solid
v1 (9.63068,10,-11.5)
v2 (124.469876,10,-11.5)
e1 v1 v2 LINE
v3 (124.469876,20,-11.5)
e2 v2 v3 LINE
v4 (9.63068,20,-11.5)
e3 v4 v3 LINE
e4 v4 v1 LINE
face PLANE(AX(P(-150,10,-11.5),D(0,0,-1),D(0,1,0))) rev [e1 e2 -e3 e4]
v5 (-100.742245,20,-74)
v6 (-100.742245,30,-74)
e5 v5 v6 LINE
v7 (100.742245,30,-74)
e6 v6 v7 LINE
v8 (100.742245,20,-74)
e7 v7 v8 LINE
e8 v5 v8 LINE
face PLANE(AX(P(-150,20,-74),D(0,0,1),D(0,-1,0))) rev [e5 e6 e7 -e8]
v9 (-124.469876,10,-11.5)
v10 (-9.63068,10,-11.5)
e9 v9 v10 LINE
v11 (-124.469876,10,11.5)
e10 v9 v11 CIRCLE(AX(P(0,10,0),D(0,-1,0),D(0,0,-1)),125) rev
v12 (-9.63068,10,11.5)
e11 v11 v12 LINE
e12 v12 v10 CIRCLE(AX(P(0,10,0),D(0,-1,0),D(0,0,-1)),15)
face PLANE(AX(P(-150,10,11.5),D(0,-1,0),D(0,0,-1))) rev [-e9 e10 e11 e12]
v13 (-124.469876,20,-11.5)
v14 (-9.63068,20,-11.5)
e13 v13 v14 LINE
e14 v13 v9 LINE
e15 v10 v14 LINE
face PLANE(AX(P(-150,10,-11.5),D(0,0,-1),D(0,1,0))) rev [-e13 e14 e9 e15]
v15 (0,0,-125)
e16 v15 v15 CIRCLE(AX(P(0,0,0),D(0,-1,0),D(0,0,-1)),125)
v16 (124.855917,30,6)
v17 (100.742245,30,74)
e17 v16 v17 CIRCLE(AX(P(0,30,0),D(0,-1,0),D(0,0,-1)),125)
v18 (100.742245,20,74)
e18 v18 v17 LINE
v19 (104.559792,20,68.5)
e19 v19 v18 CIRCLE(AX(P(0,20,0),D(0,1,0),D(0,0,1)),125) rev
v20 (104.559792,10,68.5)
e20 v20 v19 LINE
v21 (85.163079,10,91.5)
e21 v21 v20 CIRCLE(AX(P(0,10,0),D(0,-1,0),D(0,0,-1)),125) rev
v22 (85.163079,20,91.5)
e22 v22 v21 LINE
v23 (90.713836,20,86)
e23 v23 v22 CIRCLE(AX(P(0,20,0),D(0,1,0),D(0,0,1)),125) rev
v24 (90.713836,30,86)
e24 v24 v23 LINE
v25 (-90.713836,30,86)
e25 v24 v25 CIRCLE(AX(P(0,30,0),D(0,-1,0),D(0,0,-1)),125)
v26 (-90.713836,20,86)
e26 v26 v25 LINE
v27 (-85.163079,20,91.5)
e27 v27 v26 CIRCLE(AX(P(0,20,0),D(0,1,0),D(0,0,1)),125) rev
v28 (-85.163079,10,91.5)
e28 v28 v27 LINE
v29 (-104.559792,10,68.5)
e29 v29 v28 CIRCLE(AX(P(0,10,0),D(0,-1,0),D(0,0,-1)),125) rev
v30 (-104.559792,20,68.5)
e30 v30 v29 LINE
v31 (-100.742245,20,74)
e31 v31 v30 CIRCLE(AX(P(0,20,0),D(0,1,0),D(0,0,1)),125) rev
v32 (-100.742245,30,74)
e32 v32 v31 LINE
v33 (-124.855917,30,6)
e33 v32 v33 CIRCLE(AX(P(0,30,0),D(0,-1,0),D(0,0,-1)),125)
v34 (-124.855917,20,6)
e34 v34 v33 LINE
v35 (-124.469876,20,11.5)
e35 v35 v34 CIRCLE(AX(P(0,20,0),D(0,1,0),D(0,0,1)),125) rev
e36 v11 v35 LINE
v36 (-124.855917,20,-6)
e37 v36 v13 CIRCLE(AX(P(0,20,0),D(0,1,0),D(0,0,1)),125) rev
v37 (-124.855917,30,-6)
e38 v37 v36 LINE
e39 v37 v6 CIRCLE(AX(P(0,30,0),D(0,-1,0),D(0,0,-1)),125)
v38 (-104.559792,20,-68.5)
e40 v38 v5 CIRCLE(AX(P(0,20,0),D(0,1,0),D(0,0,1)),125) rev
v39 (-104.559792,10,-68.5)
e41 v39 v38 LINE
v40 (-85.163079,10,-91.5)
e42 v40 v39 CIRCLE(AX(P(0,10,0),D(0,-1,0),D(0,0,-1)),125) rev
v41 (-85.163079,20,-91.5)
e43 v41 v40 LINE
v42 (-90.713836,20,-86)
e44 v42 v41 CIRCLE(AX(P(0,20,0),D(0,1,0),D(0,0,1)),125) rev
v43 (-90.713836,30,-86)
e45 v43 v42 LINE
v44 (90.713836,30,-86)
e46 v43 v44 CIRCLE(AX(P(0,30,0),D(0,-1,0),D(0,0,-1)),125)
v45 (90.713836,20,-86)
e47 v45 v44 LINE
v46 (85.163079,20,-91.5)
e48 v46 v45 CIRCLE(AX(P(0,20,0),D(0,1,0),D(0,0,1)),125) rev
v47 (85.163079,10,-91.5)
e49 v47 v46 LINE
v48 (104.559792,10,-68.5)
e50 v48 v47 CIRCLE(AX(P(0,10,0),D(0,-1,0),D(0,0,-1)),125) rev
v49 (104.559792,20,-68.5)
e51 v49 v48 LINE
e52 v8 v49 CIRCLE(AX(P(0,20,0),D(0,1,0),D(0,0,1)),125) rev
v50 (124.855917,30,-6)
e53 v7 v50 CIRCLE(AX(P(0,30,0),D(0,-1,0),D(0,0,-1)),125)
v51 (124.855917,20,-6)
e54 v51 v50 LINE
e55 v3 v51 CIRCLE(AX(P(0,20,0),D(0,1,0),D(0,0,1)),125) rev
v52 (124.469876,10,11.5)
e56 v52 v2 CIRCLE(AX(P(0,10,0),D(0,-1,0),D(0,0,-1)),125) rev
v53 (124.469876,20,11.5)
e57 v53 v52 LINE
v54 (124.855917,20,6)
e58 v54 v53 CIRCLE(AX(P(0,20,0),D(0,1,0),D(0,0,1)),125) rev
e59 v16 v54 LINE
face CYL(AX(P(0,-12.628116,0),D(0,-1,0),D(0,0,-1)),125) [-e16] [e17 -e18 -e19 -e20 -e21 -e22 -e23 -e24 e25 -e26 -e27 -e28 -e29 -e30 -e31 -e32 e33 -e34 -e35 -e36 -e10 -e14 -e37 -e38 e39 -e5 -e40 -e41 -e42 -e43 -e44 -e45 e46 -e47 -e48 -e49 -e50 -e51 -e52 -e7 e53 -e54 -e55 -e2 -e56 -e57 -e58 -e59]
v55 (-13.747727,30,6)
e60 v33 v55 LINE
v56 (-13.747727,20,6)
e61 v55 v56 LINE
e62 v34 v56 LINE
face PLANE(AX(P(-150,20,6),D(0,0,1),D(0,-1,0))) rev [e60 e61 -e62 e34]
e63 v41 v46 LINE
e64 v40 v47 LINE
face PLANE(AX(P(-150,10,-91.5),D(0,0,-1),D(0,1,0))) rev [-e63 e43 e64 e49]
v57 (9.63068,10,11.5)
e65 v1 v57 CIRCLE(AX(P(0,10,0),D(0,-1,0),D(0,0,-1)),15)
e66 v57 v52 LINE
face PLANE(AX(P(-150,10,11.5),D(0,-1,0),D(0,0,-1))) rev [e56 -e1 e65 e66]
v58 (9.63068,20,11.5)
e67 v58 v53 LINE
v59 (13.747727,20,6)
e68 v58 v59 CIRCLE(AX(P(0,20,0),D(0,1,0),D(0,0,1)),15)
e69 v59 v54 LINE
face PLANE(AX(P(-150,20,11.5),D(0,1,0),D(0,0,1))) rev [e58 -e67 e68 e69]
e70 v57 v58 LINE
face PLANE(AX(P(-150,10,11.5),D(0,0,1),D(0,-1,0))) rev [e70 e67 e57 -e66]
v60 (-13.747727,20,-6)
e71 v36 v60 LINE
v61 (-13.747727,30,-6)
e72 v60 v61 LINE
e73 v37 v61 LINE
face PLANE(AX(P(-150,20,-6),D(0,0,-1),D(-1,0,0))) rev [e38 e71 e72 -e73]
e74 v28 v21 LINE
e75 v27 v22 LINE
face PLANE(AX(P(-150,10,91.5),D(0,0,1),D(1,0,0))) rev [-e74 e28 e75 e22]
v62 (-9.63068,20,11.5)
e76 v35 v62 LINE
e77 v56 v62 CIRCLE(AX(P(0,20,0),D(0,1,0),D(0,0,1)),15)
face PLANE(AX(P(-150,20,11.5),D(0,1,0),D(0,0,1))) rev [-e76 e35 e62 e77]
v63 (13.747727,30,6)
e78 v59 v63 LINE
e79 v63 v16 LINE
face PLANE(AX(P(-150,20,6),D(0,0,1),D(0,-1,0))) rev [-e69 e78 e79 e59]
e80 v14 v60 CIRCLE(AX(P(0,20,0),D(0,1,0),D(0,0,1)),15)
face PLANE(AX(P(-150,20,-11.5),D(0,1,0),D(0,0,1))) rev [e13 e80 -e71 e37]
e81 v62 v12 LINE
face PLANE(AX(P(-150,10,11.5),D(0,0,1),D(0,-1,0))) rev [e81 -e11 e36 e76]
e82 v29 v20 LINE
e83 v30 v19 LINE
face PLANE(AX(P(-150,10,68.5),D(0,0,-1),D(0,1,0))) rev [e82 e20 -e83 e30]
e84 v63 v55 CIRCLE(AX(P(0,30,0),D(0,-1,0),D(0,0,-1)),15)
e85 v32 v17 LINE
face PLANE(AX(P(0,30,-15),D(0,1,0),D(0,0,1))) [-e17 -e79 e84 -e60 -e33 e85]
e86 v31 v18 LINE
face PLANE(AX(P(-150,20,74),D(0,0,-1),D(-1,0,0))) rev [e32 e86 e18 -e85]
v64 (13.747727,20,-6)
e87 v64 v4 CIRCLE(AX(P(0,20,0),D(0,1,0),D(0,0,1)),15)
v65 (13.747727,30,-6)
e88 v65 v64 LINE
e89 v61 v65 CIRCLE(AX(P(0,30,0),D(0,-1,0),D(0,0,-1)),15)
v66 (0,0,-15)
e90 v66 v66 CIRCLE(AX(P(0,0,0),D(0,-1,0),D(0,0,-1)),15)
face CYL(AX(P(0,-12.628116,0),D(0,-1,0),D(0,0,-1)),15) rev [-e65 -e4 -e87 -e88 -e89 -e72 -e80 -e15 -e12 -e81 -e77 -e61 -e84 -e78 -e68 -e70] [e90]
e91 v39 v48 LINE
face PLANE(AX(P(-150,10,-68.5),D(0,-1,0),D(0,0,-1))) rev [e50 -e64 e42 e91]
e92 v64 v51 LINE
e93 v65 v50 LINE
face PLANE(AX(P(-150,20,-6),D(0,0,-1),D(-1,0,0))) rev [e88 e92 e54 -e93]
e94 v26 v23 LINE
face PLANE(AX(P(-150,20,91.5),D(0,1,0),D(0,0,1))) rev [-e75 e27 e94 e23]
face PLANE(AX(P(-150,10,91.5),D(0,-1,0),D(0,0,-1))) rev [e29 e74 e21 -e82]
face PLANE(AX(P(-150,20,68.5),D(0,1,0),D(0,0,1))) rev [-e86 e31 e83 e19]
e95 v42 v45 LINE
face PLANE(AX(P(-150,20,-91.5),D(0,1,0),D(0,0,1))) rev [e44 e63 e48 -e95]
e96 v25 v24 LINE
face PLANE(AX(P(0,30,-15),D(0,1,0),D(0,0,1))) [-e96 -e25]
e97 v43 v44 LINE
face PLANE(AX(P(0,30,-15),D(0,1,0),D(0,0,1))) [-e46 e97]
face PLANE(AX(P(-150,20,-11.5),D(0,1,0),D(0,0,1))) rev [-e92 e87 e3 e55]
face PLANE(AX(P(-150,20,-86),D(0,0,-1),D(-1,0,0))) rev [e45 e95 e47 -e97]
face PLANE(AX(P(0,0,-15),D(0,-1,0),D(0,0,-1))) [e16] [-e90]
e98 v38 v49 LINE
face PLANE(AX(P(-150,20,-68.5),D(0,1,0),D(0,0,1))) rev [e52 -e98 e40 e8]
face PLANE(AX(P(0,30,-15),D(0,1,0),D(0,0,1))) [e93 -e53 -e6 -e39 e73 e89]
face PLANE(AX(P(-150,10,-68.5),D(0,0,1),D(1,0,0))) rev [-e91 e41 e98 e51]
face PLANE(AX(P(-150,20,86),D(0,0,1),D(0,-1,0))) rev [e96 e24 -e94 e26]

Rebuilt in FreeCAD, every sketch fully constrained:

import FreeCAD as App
import Part
import Sketcher

V = App.Vector
Q = App.Units.Quantity

doc = App.newDocument("Part")
body = doc.addObject("PartDesign::Body", "Body")

# Sketch on YZ plane
sketch1 = body.newObject("Sketcher::SketchObject", "Sketch")
sketch1.AttachmentSupport = (doc.getObject("YZ_Plane"), [""])
sketch1.MapMode = "FlatFace"
sketch1.addGeometry([
    Part.LineSegment(V(30, -15, 0), V(0, -15, 0)),
    Part.LineSegment(V(0, -15, 0), V(0, -125, 0)),
    Part.LineSegment(V(0, -125, 0), V(30, -125, 0)),
    Part.LineSegment(V(30, -125, 0), V(30, -15, 0)),
], False)
sketch1.addConstraint([
    Sketcher.Constraint("Coincident", 0, 2, 1, 1),
    Sketcher.Constraint("Coincident", 1, 2, 2, 1),
    Sketcher.Constraint("Coincident", 2, 2, 3, 1),
    Sketcher.Constraint("Coincident", 3, 2, 0, 1),
    Sketcher.Constraint("Horizontal", 0),
    Sketcher.Constraint("Vertical", 1),
    Sketcher.Constraint("Horizontal", 2),
    Sketcher.Constraint("Vertical", 3),
    Sketcher.Constraint("PointOnObject", 0, 2, -2),
    Sketcher.Constraint("DistanceX", 0, 2, 0, 1, Q("30 mm")),
    Sketcher.Constraint("DistanceY", 1, 2, 1, 1, Q("110 mm")),
    Sketcher.Constraint("DistanceY", 0, 2, -1, 1, Q("15 mm")),
])
revolution = body.newObject("PartDesign::Revolution", "Revolution")
revolution.Profile = sketch1
revolution.ReferenceAxis = (sketch1, ["H_Axis"])
revolution.Angle = 360

# Sketch on YZ plane
sketch2 = body.newObject("Sketcher::SketchObject", "Sketch001")
sketch2.AttachmentSupport = (doc.getObject("YZ_Plane"), [""])
sketch2.MapMode = "FlatFace"
sketch2.addGeometry([
    Part.LineSegment(V(10, -12, 0), V(20, -12, 0)),  # 0
    Part.LineSegment(V(20, -12, 0), V(20, -6, 0)),  # 1
    Part.LineSegment(V(20, -6, 0), V(30, -6, 0)),  # 2
    Part.LineSegment(V(30, -6, 0), V(30, 6, 0)),  # 3
    Part.LineSegment(V(30, 6, 0), V(20, 6, 0)),  # 4
    Part.LineSegment(V(20, 6, 0), V(20, 12, 0)),  # 5
    Part.LineSegment(V(20, 12, 0), V(10, 12, 0)),  # 6
    Part.LineSegment(V(10, 12, 0), V(10, -12, 0)),  # 7
    Part.LineSegment(V(10, -68, 0), V(10, -92, 0)),  # 8
    Part.LineSegment(V(10, -92, 0), V(20, -92, 0)),  # 9
    Part.LineSegment(V(20, -92, 0), V(20, -86, 0)),  # 10
    Part.LineSegment(V(20, -86, 0), V(30, -86, 0)),  # 11
    Part.LineSegment(V(30, -86, 0), V(30, -74, 0)),  # 12
    Part.LineSegment(V(30, -74, 0), V(20, -74, 0)),  # 13
    Part.LineSegment(V(20, -74, 0), V(20, -68, 0)),  # 14
    Part.LineSegment(V(20, -68, 0), V(10, -68, 0)),  # 15
    Part.LineSegment(V(10, 92, 0), V(10, 68, 0)),  # 16
    Part.LineSegment(V(10, 68, 0), V(20, 68, 0)),  # 17
    Part.LineSegment(V(20, 68, 0), V(20, 74, 0)),  # 18
    Part.LineSegment(V(20, 74, 0), V(30, 74, 0)),  # 19
    Part.LineSegment(V(30, 74, 0), V(30, 86, 0)),  # 20
    Part.LineSegment(V(30, 86, 0), V(20, 86, 0)),  # 21
    Part.LineSegment(V(20, 86, 0), V(20, 92, 0)),  # 22
    Part.LineSegment(V(20, 92, 0), V(10, 92, 0)),  # 23
], False)
sketch2.addConstraint([
    Sketcher.Constraint("Coincident", 0, 2, 1, 1),
    Sketcher.Constraint("Coincident", 1, 2, 2, 1),
    Sketcher.Constraint("Coincident", 2, 2, 3, 1),
    Sketcher.Constraint("Coincident", 3, 2, 4, 1),
    Sketcher.Constraint("Coincident", 4, 2, 5, 1),
    Sketcher.Constraint("Coincident", 5, 2, 6, 1),
    Sketcher.Constraint("Coincident", 6, 2, 7, 1),
    Sketcher.Constraint("Coincident", 7, 2, 0, 1),
    Sketcher.Constraint("Coincident", 8, 2, 9, 1),
    Sketcher.Constraint("Coincident", 9, 2, 10, 1),
    Sketcher.Constraint("Coincident", 10, 2, 11, 1),
    Sketcher.Constraint("Coincident", 11, 2, 12, 1),
    Sketcher.Constraint("Coincident", 12, 2, 13, 1),
    Sketcher.Constraint("Coincident", 13, 2, 14, 1),
    Sketcher.Constraint("Coincident", 14, 2, 15, 1),
    Sketcher.Constraint("Coincident", 15, 2, 8, 1),
    Sketcher.Constraint("Coincident", 16, 2, 17, 1),
    Sketcher.Constraint("Coincident", 17, 2, 18, 1),
    Sketcher.Constraint("Coincident", 18, 2, 19, 1),
    Sketcher.Constraint("Coincident", 19, 2, 20, 1),
    Sketcher.Constraint("Coincident", 20, 2, 21, 1),
    Sketcher.Constraint("Coincident", 21, 2, 22, 1),
    Sketcher.Constraint("Coincident", 22, 2, 23, 1),
    Sketcher.Constraint("Coincident", 23, 2, 16, 1),
    Sketcher.Constraint("Horizontal", 0),
    Sketcher.Constraint("Vertical", 1),
    Sketcher.Constraint("Horizontal", 2),
    Sketcher.Constraint("Vertical", 3),
    Sketcher.Constraint("Horizontal", 4),
    Sketcher.Constraint("Vertical", 5),
    Sketcher.Constraint("Horizontal", 6),
    Sketcher.Constraint("Vertical", 7),
    Sketcher.Constraint("Vertical", 8),
    Sketcher.Constraint("Horizontal", 9),
    Sketcher.Constraint("Vertical", 10),
    Sketcher.Constraint("Horizontal", 11),
    Sketcher.Constraint("Vertical", 12),
    Sketcher.Constraint("Horizontal", 13),
    Sketcher.Constraint("Vertical", 14),
    Sketcher.Constraint("Horizontal", 15),
    Sketcher.Constraint("Vertical", 16),
    Sketcher.Constraint("Horizontal", 17),
    Sketcher.Constraint("Vertical", 18),
    Sketcher.Constraint("Horizontal", 19),
    Sketcher.Constraint("Vertical", 20),
    Sketcher.Constraint("Horizontal", 21),
    Sketcher.Constraint("Vertical", 22),
    Sketcher.Constraint("Horizontal", 23),
    Sketcher.Constraint("Symmetric", 1, 2, 4, 2, -1),
    Sketcher.Constraint("Symmetric", 15, 2, 16, 2, -1),
    Sketcher.Constraint("Symmetric", 13, 2, 18, 2, -1),
    Sketcher.Constraint("Symmetric", 11, 2, 20, 2, -1),
    Sketcher.Constraint("Symmetric", 9, 2, 22, 2, -1),
    Sketcher.Constraint("Vertical", 7, 2, 8, 2),
    Sketcher.Constraint("Vertical", 5, 2, 9, 2),
    Sketcher.Constraint("Vertical", 3, 2, 11, 2),
    Sketcher.Constraint("Vertical", 10, 2, 13, 2),
    Sketcher.Constraint("Equal", 0, 2),
    Sketcher.Constraint("Equal", 1, 5),
    Sketcher.Constraint("Equal", 7, 8),
    Sketcher.Constraint("Equal", 5, 10),
    Sketcher.Constraint("Equal", 3, 12),
    Sketcher.Constraint("DistanceX", 0, 1, 0, 2, Q("10 mm")),
    Sketcher.Constraint("DistanceY", 3, 1, 3, 2, Q("12 mm")),
    Sketcher.Constraint("DistanceY", 7, 2, 7, 1, Q("23 mm")),
    Sketcher.Constraint("DistanceX", -1, 1, 0, 2, Q("20 mm")),
    Sketcher.Constraint("DistanceY", 10, 2, -1, 1, Q("86 mm")),
])
pocket1 = body.newObject("PartDesign::Pocket", "Pocket")
pocket1.Profile = sketch2
pocket1.Length = 300
pocket1.Midplane = True

doc.recompute()
